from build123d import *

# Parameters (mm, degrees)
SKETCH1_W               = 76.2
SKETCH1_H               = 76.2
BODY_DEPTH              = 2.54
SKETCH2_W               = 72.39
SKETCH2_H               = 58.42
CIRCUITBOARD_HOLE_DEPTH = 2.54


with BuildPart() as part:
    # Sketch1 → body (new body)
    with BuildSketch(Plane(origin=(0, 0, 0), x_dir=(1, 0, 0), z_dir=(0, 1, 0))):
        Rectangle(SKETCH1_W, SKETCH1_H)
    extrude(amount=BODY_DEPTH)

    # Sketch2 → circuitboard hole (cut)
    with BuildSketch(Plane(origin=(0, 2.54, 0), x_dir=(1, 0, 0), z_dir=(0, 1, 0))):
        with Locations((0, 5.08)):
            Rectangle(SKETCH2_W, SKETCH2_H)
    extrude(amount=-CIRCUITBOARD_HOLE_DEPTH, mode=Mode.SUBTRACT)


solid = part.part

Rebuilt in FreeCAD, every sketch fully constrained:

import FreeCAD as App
import Part
import Sketcher
Q = App.Units.Quantity


def add_polygon(sketch, points):
    """Adds a closed chain of lines whose ends are joined by coincident constraints."""
    first, n = sketch.GeometryCount, len(points)
    for a, b in zip(points, points[1:] + points[:1]):
        sketch.addGeometry(Part.LineSegment(App.Vector(*a, 0), App.Vector(*b, 0)), False)
    for i in range(n):
        sketch.addConstraint(Sketcher.Constraint("Coincident", first + i, 2, first + (i + 1) % n, 1))

doc = App.newDocument("Part")
body = doc.addObject("PartDesign::Body", "Body")

sketch1 = body.newObject("Sketcher::SketchObject", "Sketch")
sketch1.AttachmentSupport = (doc.getObject("XZ_Plane"), [""])
sketch1.MapMode = "FlatFace"
add_polygon(sketch1, [(-38.1, -38.1), (-38.1, 38.1), (38.1, 38.1), (38.1, -38.1)])
sketch1.addConstraint([
    Sketcher.Constraint("Vertical", 0),
    Sketcher.Constraint("Horizontal", 1),
    Sketcher.Constraint("Vertical", 2),
    Sketcher.Constraint("Horizontal", 3),
    Sketcher.Constraint("Symmetric", 0, 2, 2, 2, -1, 1),
    Sketcher.Constraint("Equal", 3, 0),
    Sketcher.Constraint("DistanceX", 1, 1, 1, 2, Q("3 in")),
])
pad1 = body.newObject("PartDesign::Pad", "Pad")
pad1.Profile = sketch1
pad1.Length = Q("0.1 in")
pad1.Reversed = True

sketch2 = body.newObject("Sketcher::SketchObject", "Sketch001")
sketch2.AttachmentSupport = (doc.getObject("XZ_Plane"), [""])
sketch2.MapMode = "FlatFace"
sketch2.AttachmentOffset = App.Placement(App.Vector(0, 0, -0.1 * 25.4), App.Rotation())
add_polygon(sketch2, [(-36.195, -34.29), (-36.195, 24.13), (36.195, 24.13), (36.195, -34.29)])
sketch2.addConstraint([
    Sketcher.Constraint("Vertical", 0),
    Sketcher.Constraint("Horizontal", 1),
    Sketcher.Constraint("Vertical", 2),
    Sketcher.Constraint("Horizontal", 3),
    Sketcher.Constraint("DistanceY", 0, 1, 0, 2, Q("2.3 in")),
    Sketcher.Constraint("DistanceX", 1, 1, 1, 2, Q("2.85 in")),
    Sketcher.Constraint("DistanceY", -1, 1, 0, 2, Q("0.95 in")),
    Sketcher.Constraint("DistanceX", 0, 2, -1, 1, Q("1.425 in")),
])
pocket1 = body.newObject("PartDesign::Pocket", "Pocket")
pocket1.Profile = sketch2
pocket1.Length = Q("0.1 in")
pocket1.Reversed = True

doc.recompute()
